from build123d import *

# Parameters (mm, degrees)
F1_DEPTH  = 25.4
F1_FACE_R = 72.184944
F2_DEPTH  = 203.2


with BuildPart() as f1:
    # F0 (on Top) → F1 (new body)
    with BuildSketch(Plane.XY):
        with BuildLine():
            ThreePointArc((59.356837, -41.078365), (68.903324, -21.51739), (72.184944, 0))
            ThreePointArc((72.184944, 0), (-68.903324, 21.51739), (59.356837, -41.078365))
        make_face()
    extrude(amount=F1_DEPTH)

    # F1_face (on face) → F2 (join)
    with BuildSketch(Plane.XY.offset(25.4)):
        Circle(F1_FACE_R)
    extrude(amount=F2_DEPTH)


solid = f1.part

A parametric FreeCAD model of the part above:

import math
import FreeCAD as App
import Part
import Sketcher

V = App.Vector
Q = App.Units.Quantity

doc = App.newDocument("Part")
body = doc.addObject("PartDesign::Body", "Body")

sketch1 = body.newObject("Sketcher::SketchObject", "Sketch")
sketch1.AttachmentSupport = (doc.getObject("XY_Plane"), [""])
sketch1.MapMode = "FlatFace"
sketch1.addGeometry(Part.ArcOfCircle(Part.Circle(V(0, 0, 0), V(0, 0, 1), 72), math.radians(-35), math.radians(0)), False)
sketch1.addGeometry(Part.ArcOfCircle(Part.Circle(V(0, 0, 0), V(0, 0, 1), 72), math.radians(0), math.radians(325)), False)
sketch1.addConstraint(Sketcher.Constraint("Tangent", 0, 1, 1, 2))
sketch1.addConstraint(Sketcher.Constraint("Coincident", 1, 1, 0, 2))
sketch1.addConstraint(Sketcher.Constraint("Coincident", 0, 3, -1, 1))
sketch1.addConstraint(Sketcher.Constraint("PointOnObject", 1, 1, -1))
sketch1.addConstraint(Sketcher.Constraint("Radius", 0, 72.184948))
sketch1.addConstraint(Sketcher.Constraint("DistanceX", 0, 3, 0, 1, 59.356841))
pad1 = body.newObject("PartDesign::Pad", "Pad")
pad1.Profile = sketch1
pad1.Length = Q("1 in")

sketch2 = body.newObject("Sketcher::SketchObject", "Sketch001")
sketch2.AttachmentSupport = (doc.getObject("XY_Plane"), [""])
sketch2.MapMode = "FlatFace"
sketch2.AttachmentOffset = App.Placement(V(0, 0, 1 * 25.4), App.Rotation())
sketch2.addGeometry(Part.Circle(V(0, 0, 0), V(0, 0, 1), 72), False)
sketch2.addConstraint(Sketcher.Constraint("Coincident", 0, 3, -1, 1))
sketch2.addConstraint(Sketcher.Constraint("Diameter", 0, 144.369888))
pad2 = body.newObject("PartDesign::Pad", "Pad001")
pad2.Profile = sketch2
pad2.Length = Q("8 in")

doc.recompute()
